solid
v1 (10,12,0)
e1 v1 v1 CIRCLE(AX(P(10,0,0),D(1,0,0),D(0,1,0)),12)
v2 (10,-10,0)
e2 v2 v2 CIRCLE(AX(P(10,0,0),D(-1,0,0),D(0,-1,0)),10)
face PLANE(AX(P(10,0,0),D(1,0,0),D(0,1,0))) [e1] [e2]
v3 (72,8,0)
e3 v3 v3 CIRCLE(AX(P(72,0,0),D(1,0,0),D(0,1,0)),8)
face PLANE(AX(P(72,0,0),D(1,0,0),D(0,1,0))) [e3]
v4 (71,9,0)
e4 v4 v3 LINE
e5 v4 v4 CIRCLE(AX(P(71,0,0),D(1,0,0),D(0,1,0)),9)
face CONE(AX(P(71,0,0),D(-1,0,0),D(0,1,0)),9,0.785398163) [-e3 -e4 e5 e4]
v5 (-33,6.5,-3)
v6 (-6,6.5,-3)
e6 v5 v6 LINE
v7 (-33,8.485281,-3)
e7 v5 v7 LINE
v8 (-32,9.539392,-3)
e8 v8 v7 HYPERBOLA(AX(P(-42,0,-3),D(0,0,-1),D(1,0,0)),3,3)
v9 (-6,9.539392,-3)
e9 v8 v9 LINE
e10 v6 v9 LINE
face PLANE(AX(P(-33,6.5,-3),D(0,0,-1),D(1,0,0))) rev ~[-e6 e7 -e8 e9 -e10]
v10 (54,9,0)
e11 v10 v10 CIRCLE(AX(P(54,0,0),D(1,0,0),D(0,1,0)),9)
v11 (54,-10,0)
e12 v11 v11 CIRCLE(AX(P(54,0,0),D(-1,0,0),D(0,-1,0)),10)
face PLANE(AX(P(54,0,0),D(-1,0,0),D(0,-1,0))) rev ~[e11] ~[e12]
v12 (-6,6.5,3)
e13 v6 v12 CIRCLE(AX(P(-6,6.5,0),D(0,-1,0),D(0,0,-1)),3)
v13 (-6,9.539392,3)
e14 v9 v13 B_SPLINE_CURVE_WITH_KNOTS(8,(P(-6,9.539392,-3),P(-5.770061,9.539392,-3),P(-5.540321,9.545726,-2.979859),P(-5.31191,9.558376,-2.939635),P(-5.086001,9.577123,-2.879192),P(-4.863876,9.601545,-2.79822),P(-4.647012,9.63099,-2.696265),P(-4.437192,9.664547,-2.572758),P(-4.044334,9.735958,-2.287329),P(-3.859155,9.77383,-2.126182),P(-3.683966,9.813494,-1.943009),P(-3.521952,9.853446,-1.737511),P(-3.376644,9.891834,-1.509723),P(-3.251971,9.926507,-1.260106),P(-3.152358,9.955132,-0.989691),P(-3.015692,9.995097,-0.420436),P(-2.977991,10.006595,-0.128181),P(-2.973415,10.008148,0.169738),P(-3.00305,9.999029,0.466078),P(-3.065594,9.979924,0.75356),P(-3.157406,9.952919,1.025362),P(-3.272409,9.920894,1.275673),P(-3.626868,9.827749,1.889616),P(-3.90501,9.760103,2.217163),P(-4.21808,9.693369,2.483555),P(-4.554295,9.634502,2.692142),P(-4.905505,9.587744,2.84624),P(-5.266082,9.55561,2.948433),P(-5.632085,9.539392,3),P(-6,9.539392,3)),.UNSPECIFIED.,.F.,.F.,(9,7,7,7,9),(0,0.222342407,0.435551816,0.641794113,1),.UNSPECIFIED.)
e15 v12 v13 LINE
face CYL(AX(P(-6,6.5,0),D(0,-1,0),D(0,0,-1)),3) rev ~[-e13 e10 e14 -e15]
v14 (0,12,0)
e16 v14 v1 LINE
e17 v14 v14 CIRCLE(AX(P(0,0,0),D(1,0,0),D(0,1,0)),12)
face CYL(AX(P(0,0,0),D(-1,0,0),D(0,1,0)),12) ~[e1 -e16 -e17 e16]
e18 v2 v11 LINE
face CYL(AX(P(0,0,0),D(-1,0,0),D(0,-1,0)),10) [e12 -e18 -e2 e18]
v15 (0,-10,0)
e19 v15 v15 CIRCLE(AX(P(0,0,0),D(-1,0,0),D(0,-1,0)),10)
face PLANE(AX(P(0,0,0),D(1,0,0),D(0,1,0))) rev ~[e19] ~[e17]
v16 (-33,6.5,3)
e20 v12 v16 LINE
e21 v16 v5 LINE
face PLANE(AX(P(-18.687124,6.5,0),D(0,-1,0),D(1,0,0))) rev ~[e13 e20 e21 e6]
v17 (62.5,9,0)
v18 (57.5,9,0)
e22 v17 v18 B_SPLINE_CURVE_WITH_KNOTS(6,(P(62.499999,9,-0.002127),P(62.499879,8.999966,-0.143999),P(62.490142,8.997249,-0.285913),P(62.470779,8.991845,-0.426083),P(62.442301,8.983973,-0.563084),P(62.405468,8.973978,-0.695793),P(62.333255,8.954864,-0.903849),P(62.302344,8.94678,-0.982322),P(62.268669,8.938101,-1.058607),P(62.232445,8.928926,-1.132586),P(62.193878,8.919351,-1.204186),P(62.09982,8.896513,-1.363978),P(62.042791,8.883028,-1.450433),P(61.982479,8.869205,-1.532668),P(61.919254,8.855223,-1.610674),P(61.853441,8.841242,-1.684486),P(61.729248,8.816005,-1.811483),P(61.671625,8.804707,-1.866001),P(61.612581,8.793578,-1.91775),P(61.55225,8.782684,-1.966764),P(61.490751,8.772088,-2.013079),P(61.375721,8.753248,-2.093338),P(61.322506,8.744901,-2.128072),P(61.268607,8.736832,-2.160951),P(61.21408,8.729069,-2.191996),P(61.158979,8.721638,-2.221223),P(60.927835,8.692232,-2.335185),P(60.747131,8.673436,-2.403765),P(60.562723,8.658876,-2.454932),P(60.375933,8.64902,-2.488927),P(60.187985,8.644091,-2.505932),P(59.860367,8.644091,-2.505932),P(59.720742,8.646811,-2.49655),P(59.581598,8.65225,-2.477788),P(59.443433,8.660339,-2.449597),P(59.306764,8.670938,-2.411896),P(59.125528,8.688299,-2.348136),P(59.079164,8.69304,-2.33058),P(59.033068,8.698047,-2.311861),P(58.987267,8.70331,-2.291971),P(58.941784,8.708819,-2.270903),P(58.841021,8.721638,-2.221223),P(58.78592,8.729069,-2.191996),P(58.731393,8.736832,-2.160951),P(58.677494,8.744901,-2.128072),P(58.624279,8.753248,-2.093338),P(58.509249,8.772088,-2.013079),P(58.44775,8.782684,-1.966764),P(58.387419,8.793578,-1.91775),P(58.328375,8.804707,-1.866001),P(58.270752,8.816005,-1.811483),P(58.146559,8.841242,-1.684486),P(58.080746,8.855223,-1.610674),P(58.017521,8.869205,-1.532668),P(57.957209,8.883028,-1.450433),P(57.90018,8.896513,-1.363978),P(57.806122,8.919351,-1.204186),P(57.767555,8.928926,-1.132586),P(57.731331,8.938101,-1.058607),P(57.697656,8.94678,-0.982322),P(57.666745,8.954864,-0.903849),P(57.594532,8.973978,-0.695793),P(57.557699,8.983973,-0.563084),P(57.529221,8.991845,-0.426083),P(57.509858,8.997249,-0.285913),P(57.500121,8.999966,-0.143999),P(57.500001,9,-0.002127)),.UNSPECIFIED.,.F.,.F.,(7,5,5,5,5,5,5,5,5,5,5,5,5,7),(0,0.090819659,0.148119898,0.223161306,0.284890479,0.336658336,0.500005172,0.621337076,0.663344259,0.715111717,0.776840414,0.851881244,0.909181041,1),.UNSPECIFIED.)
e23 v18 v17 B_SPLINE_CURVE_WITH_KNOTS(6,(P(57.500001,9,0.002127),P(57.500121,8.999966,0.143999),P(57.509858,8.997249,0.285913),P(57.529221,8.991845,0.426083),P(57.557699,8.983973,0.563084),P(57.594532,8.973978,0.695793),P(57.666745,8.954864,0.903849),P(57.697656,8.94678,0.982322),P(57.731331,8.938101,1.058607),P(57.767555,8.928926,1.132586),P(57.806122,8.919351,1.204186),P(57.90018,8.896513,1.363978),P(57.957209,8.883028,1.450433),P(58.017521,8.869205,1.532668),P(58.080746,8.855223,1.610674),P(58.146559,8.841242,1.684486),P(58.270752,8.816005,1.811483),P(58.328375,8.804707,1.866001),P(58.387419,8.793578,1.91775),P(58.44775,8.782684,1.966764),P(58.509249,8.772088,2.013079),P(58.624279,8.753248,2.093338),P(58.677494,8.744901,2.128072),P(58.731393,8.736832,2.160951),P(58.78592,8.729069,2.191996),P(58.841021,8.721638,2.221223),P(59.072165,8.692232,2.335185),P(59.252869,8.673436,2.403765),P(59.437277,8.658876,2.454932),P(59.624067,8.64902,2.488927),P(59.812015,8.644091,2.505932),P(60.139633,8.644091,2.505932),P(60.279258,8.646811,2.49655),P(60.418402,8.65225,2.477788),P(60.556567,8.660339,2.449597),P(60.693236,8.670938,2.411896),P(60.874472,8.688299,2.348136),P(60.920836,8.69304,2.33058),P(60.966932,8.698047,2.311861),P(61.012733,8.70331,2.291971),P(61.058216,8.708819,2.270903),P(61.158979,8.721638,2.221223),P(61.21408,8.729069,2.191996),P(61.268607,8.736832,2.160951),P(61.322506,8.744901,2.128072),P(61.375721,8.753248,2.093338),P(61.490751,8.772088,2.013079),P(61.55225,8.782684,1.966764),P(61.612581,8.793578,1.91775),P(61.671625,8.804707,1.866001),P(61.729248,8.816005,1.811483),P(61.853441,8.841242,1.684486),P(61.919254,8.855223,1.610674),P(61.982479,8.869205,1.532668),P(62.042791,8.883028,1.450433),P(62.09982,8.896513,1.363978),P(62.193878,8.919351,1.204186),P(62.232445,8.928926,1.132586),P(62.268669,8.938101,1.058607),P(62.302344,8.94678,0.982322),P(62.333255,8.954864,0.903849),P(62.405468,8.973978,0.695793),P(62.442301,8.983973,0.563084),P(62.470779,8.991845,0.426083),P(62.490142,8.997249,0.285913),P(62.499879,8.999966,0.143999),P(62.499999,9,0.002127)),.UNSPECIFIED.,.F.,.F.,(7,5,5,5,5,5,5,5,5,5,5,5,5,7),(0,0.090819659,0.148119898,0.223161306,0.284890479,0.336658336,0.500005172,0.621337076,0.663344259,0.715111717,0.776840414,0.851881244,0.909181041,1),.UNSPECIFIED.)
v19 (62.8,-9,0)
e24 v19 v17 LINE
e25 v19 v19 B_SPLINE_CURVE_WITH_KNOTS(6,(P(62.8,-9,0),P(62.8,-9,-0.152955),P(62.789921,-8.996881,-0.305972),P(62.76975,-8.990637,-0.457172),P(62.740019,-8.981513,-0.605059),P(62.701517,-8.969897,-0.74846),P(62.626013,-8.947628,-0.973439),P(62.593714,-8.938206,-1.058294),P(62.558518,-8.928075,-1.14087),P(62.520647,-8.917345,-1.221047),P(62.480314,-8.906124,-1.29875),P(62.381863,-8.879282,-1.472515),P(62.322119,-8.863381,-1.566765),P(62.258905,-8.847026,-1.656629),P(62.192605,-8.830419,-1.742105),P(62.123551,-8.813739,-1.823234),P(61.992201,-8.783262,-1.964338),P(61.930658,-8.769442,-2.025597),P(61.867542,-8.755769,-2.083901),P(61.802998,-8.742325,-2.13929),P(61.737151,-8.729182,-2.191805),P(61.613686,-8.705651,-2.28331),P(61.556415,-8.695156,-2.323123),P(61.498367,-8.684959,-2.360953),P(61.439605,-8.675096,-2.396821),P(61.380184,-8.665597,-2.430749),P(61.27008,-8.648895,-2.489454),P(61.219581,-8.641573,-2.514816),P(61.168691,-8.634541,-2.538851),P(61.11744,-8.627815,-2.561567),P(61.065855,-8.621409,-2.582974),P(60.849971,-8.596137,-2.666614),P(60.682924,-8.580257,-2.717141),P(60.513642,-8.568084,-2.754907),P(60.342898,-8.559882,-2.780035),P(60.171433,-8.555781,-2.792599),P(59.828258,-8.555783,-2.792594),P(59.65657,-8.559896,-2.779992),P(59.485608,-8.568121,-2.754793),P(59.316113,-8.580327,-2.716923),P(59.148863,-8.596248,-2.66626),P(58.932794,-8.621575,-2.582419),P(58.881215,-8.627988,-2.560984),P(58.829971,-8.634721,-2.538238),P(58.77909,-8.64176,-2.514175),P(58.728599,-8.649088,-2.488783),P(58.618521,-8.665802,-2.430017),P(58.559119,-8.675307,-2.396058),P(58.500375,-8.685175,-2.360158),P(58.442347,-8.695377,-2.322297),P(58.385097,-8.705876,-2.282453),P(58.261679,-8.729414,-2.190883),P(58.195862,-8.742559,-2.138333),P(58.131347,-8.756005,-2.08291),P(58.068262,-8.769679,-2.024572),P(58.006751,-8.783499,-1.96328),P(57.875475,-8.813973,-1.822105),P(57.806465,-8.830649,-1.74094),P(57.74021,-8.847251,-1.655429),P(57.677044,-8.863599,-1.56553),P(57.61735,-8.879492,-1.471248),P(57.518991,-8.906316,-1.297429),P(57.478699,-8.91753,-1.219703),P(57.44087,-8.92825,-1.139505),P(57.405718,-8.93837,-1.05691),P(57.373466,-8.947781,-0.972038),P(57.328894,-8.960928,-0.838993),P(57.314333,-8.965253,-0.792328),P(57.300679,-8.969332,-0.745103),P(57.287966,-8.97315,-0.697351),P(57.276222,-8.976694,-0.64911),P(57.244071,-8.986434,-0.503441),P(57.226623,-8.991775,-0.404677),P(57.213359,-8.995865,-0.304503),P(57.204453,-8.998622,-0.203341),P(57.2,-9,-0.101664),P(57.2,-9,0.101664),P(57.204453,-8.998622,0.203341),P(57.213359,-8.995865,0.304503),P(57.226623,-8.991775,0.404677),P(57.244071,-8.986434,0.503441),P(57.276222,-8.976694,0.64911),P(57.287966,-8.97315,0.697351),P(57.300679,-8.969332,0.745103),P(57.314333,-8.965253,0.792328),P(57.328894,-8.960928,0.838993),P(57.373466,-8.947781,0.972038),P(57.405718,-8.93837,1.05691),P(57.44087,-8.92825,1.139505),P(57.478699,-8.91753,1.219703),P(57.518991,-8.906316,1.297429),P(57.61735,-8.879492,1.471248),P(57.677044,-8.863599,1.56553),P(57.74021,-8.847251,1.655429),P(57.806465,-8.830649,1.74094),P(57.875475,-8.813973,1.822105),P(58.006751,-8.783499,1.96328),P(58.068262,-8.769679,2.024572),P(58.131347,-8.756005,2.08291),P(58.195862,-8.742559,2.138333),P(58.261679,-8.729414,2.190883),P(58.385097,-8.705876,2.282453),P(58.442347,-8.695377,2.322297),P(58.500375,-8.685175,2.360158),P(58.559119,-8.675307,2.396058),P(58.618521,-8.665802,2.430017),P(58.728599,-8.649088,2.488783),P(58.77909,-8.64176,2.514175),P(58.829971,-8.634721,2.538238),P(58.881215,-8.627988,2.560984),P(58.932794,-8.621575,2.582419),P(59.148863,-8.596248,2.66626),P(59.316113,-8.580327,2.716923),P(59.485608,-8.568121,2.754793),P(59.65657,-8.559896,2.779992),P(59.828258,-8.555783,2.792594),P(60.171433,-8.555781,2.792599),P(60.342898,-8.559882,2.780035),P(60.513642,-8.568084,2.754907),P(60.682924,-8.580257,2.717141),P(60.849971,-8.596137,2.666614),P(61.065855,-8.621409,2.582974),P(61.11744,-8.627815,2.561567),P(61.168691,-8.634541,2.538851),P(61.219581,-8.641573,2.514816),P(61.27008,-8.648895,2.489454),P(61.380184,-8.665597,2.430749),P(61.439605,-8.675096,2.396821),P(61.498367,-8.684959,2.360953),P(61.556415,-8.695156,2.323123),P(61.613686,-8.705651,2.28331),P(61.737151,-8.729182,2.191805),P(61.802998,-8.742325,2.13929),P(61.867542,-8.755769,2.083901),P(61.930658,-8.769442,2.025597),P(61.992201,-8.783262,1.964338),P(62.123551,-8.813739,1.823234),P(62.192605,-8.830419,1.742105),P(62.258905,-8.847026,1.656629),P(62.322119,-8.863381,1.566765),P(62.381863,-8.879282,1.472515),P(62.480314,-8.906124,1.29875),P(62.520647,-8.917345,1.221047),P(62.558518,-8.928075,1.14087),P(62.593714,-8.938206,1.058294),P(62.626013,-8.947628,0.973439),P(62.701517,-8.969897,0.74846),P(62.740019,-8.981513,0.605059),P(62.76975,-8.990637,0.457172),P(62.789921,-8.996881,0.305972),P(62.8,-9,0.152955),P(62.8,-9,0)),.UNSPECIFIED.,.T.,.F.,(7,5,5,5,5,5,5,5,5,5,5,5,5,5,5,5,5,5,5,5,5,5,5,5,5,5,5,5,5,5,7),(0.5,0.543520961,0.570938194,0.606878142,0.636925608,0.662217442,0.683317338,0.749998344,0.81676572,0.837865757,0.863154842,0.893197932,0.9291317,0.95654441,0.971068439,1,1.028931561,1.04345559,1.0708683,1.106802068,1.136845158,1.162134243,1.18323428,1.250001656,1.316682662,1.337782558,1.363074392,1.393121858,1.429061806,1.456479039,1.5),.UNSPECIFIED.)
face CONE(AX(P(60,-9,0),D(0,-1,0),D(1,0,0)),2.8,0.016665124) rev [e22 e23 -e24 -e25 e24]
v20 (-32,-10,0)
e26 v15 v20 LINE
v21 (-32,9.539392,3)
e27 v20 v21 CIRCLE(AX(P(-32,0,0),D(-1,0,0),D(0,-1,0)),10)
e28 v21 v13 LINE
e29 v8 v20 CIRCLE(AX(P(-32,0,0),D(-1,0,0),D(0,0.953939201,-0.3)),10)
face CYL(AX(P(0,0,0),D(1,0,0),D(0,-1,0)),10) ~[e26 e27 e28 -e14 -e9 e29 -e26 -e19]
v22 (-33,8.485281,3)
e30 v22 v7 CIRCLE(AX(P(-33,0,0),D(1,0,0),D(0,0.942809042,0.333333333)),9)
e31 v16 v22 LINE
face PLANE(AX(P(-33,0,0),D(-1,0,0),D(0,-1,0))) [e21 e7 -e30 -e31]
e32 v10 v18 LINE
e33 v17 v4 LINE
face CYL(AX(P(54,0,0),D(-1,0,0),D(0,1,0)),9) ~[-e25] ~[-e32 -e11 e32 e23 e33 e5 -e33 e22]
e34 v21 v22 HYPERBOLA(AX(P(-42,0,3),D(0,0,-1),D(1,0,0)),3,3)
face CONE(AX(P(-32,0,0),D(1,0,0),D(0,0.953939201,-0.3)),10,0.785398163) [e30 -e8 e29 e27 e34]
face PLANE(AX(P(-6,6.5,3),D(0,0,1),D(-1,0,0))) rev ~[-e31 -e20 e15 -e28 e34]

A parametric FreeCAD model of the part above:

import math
import FreeCAD as App
import Part
import Sketcher
Q = App.Units.Quantity


def edges_at(feature, points):
    """Names of the edges that pass closest to the given points."""
    edges = feature.Shape.Edges
    near = lambda p: min(range(len(edges)), key=lambda i: edges[i].distToShape(Part.Vertex(*p))[0])
    return sorted({f"Edge{near(p) + 1}" for p in points})


def add_polygon(sketch, points):
    """Adds a closed chain of lines whose ends are joined by coincident constraints."""
    first, n = sketch.GeometryCount, len(points)
    for a, b in zip(points, points[1:] + points[:1]):
        sketch.addGeometry(Part.LineSegment(App.Vector(*a, 0), App.Vector(*b, 0)), False)
    for i in range(n):
        sketch.addConstraint(Sketcher.Constraint("Coincident", first + i, 2, first + (i + 1) % n, 1))

doc = App.newDocument("Part")
params = doc.addObject("Spreadsheet::Sheet", "Params")
for row, (alias, value) in enumerate([
    ("sketch1_diameter", "24 mm"),
    ("pad1_length", "10 mm"),
    ("sketch2_diameter", "20 mm"),
    ("pad2_length", "33 mm"),
    ("sketch3_diameter", "20 mm"),
    ("pad3_length", "54 mm"),
    ("sketch4_diameter", "18 mm"),
    ("pad4_length", "18 mm"),
    ("sketch5_radius", "3 mm"),
    ("sketch5_width", "27 mm"),
    ("chamfer_size", "1 mm"),
    ("sketch6_width", "2.5 mm"),
    ("groove_angle", "360 deg"),
], start=1):
    params.set(f"A{row}", alias)
    params.set(f"B{row}", "=" + value)
    params.setAlias(f"B{row}", alias)

body = doc.addObject("PartDesign::Body", "Body")

sketch1 = body.newObject("Sketcher::SketchObject", "Sketch")
sketch1.AttachmentSupport = (doc.getObject("YZ_Plane"), [""])
sketch1.MapMode = "FlatFace"
sketch1.addGeometry(Part.Circle(App.Vector(0, 0, 0), App.Vector(0, 0, 1), 12), False)
sketch1.addConstraint([
    Sketcher.Constraint("Coincident", 0, 3, -1, 1),
    Sketcher.Constraint("Diameter", 0, Q("24 mm")),
])
sketch1.setExpression("Constraints[1]", "Params.sketch1_diameter")
pad1 = body.newObject("PartDesign::Pad", "Pad")
pad1.Profile = sketch1
pad1.setExpression("Length", "Params.pad1_length")

sketch2 = body.newObject("Sketcher::SketchObject", "Sketch001")
sketch2.AttachmentSupport = (doc.getObject("YZ_Plane"), [""])
sketch2.MapMode = "FlatFace"
sketch2.addGeometry(Part.Circle(App.Vector(0, 0, 0), App.Vector(0, 0, 1), 10), False)
sketch2.addConstraint([
    Sketcher.Constraint("Coincident", 0, 3, -1, 1),
    Sketcher.Constraint("Diameter", 0, Q("20 mm")),
])
sketch2.setExpression("Constraints[1]", "Params.sketch2_diameter")
pad2 = body.newObject("PartDesign::Pad", "Pad001")
pad2.Profile = sketch2
pad2.setExpression("Length", "Params.pad2_length")
pad2.Reversed = True

sketch3 = body.newObject("Sketcher::SketchObject", "Sketch002")
sketch3.AttachmentSupport = (doc.getObject("YZ_Plane"), [""])
sketch3.MapMode = "FlatFace"
sketch3.addGeometry(Part.Circle(App.Vector(0, 0, 0), App.Vector(0, 0, 1), 10), False)
sketch3.addConstraint([
    Sketcher.Constraint("Coincident", 0, 3, -1, 1),
    Sketcher.Constraint("Diameter", 0, Q("20 mm")),
])
sketch3.setExpression("Constraints[1]", "Params.sketch3_diameter")
pad3 = body.newObject("PartDesign::Pad", "Pad002")
pad3.Profile = sketch3
pad3.setExpression("Length", "Params.pad3_length")

sketch4 = body.newObject("Sketcher::SketchObject", "Sketch003")
sketch4.AttachmentSupport = (doc.getObject("YZ_Plane"), [""])
sketch4.MapMode = "FlatFace"
sketch4.AttachmentOffset = App.Placement(App.Vector(0, 0, 54), App.Rotation())
sketch4.addGeometry(Part.Circle(App.Vector(0, 0, 0), App.Vector(0, 0, 1), 9), False)
sketch4.addConstraint([
    Sketcher.Constraint("Coincident", 0, 3, -1, 1),
    Sketcher.Constraint("Diameter", 0, Q("18 mm")),
])
sketch4.setExpression("Constraints[1]", "Params.sketch4_diameter")
pad4 = body.newObject("PartDesign::Pad", "Pad003")
pad4.Profile = sketch4
pad4.setExpression("Length", "Params.pad4_length")

sketch5 = body.newObject("Sketcher::SketchObject", "Sketch004")
sketch5.AttachmentSupport = (doc.getObject("XZ_Plane"), [""])
sketch5.MapMode = "FlatFace"
sketch5.AttachmentOffset = App.Placement(App.Vector(0, 0, -6.5), App.Rotation())
sketch5.addGeometry([
    Part.LineSegment(App.Vector(-33, 3, 0), App.Vector(-33, -3, 0)),
    Part.LineSegment(App.Vector(-33, -3, 0), App.Vector(-6, -3, 0)),
    Part.ArcOfCircle(Part.Circle(App.Vector(-6, 0, 0), App.Vector(0, 0, 1), 3), math.radians(-90), math.radians(90)),
    Part.LineSegment(App.Vector(-6, 3, 0), App.Vector(-33, 3, 0)),
], False)
sketch5.addConstraint([
    Sketcher.Constraint("Coincident", 0, 2, 1, 1),
    Sketcher.Constraint("Tangent", 1, 2, 2, 1),
    Sketcher.Constraint("Tangent", 2, 2, 3, 1),
    Sketcher.Constraint("Coincident", 3, 2, 0, 1),
    Sketcher.Constraint("Vertical", 0),
    Sketcher.Constraint("Horizontal", 1),
    Sketcher.Constraint("Horizontal", 3),
    Sketcher.Constraint("PointOnObject", 2, 3, -1),
    Sketcher.Constraint("Radius", 2, Q("3 mm")),
    Sketcher.Constraint("DistanceX", 1, 1, 1, 2, Q("27 mm")),
    Sketcher.Constraint("DistanceX", 2, 3, -1, 1, Q("6 mm")),
])
sketch5.setExpression("Constraints[8]", "Params.sketch5_radius")
sketch5.setExpression("Constraints[9]", "Params.sketch5_width")
pocket1 = body.newObject("PartDesign::Pocket", "Pocket")
pocket1.Profile = sketch5
pocket1.Type = "ThroughAll"
doc.recompute()

chamfer = body.newObject("PartDesign::Chamfer", "Chamfer")
chamfer.Base = (pocket1, edges_at(pocket1, [(-33, -1.518, -9.884), (-33, -1.518, 9.884), (72, -9, 0)]))
chamfer.setExpression("Size", "Params.chamfer_size")

sketch6 = body.newObject("Sketcher::SketchObject", "Sketch005")
sketch6.AttachmentSupport = (doc.getObject("XY_Plane"), [""])
sketch6.MapMode = "FlatFace"
add_polygon(sketch6, [(62.8, -9), (62.5, 9), (62.5, 10), (60, 10), (60, -10), (62.8, -10)])
sketch6.addGeometry(Part.LineSegment(App.Vector(60, 10, 0), App.Vector(60, -10, 0)), True)
sketch6.addConstraint([
    Sketcher.Constraint("Vertical", 1),
    Sketcher.Constraint("Horizontal", 2),
    Sketcher.Constraint("Vertical", 3),
    Sketcher.Constraint("Horizontal", 4),
    Sketcher.Constraint("Vertical", 6),
    Sketcher.Constraint("Coincident", 6, 1, 2, 2),
    Sketcher.Constraint("Parallel", 0, 5),
    Sketcher.Constraint("Horizontal", 4, 2, 6, 2),
    Sketcher.Constraint("DistanceX", 2, 2, 2, 1, Q("2.5 mm")),
    Sketcher.Constraint("DistanceY", -1, 1, 0, 2, Q("8.999999 mm")),
    Sketcher.Constraint("DistanceX", -1, 1, 2, 2, Q("60 mm")),
    Sketcher.Constraint("DistanceY", 5, 2, -1, 1, Q("9 mm")),
    Sketcher.Constraint("DistanceX", -1, 1, 5, 2, Q("62.8 mm")),
    Sketcher.Constraint("DistanceX", 4, 1, 4, 2, Q("2.816925 mm")),
    Sketcher.Constraint("DistanceY", 1, 1, 1, 2, Q("0.980662 mm")),
])
sketch6.setExpression("Constraints[14]", "Params.sketch6_width")
groove = body.newObject("PartDesign::Groove", "Groove")
groove.Profile = sketch6
groove.ReferenceAxis = (sketch6, ["Axis0"])
groove.setExpression("Angle", "Params.groove_angle")

doc.recompute()
